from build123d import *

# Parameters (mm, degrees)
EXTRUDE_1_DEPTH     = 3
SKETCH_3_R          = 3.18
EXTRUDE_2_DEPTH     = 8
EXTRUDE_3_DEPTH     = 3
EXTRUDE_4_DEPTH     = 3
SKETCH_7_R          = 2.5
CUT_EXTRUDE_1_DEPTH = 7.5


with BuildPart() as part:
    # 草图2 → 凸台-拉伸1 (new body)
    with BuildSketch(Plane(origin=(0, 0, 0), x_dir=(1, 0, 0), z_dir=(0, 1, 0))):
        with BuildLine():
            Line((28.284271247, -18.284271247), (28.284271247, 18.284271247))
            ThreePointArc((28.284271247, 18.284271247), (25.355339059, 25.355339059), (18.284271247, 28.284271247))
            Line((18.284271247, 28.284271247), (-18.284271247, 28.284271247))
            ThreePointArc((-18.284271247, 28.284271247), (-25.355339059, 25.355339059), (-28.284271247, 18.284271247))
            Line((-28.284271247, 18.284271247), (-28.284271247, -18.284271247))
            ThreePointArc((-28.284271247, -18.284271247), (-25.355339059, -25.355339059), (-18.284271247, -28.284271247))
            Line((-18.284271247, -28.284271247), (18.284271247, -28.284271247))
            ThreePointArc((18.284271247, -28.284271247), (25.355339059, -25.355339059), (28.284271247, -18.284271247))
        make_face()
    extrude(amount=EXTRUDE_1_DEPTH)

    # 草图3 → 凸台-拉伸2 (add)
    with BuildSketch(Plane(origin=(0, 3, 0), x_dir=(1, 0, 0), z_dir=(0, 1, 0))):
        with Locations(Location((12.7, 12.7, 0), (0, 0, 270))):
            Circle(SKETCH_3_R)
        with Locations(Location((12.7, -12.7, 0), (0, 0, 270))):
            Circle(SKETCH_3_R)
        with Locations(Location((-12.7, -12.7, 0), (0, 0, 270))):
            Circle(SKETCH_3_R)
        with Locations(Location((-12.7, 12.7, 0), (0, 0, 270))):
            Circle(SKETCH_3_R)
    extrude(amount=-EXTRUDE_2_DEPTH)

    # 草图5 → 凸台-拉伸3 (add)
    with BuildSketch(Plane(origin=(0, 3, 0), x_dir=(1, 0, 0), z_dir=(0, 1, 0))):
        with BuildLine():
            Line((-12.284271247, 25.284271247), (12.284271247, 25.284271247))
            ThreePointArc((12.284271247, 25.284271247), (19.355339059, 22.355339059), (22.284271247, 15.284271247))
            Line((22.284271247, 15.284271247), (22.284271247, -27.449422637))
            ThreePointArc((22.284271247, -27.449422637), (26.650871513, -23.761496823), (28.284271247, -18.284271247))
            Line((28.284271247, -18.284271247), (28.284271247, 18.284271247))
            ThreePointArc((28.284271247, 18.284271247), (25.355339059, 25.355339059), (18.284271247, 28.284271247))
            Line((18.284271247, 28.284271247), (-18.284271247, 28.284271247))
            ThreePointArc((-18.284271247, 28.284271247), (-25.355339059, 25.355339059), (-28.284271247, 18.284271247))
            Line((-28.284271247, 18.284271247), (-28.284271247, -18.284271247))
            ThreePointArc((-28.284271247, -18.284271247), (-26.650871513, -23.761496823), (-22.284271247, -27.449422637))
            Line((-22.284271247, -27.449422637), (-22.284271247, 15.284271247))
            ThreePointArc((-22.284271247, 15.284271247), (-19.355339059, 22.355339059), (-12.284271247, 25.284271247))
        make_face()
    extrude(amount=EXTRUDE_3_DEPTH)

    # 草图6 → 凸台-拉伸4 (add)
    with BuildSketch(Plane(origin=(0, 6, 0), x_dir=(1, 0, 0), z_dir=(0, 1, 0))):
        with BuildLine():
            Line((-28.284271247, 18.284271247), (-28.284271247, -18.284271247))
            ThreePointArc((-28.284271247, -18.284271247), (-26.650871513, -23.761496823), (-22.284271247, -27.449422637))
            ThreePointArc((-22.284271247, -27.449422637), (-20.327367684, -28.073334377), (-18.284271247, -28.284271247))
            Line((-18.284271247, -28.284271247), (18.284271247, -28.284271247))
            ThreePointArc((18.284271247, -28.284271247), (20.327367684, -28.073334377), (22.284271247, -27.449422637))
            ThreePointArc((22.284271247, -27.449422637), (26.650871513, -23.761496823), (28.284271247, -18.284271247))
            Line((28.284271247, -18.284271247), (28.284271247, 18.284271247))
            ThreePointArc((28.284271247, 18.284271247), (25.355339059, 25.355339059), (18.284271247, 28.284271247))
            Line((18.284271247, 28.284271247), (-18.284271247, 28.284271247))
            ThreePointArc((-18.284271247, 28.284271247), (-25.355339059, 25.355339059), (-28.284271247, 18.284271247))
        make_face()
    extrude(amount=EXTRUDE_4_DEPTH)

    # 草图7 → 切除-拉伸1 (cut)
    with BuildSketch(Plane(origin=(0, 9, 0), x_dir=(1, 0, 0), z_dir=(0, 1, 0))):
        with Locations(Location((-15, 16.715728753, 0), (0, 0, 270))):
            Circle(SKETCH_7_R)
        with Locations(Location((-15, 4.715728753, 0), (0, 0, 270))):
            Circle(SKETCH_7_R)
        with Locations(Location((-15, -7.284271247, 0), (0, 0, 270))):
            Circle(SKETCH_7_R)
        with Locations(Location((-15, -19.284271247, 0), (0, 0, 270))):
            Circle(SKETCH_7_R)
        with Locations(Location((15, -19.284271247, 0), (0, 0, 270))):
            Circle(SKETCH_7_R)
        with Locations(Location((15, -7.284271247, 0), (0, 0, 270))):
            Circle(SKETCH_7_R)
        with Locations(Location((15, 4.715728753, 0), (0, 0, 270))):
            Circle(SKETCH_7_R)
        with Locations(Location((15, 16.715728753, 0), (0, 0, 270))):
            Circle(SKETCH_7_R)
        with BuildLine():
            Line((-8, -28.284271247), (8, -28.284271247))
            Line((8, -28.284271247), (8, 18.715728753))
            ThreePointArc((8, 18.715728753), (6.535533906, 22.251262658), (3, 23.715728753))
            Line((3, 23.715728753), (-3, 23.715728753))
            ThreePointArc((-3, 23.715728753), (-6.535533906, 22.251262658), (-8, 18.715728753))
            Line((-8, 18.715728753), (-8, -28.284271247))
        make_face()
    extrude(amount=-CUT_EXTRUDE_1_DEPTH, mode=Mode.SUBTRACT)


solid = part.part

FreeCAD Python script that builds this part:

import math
import FreeCAD as App
import Part
import Sketcher
Q = App.Units.Quantity

doc = App.newDocument("Part")
body = doc.addObject("PartDesign::Body", "Body")

sketch1 = body.newObject("Sketcher::SketchObject", "Sketch")
sketch1.AttachmentSupport = (doc.getObject("XZ_Plane"), [""])
sketch1.MapMode = "FlatFace"
sketch1.addGeometry(Part.LineSegment(App.Vector(28, 18, 0), App.Vector(28, -18, 0)), False)
sketch1.addGeometry(Part.ArcOfCircle(Part.Circle(App.Vector(18, -18, 0), App.Vector(0, 0, 1), 10), math.radians(-90), math.radians(0)), False)
sketch1.addGeometry(Part.LineSegment(App.Vector(18, -28, 0), App.Vector(-18, -28, 0)), False)
sketch1.addGeometry(Part.ArcOfCircle(Part.Circle(App.Vector(-18, -18, 0), App.Vector(0, 0, 1), 10), math.radians(180), math.radians(270)), False)
sketch1.addGeometry(Part.LineSegment(App.Vector(-28, -18, 0), App.Vector(-28, 18, 0)), False)
sketch1.addGeometry(Part.ArcOfCircle(Part.Circle(App.Vector(-18, 18, 0), App.Vector(0, 0, 1), 10), math.radians(90), math.radians(180)), False)
sketch1.addGeometry(Part.LineSegment(App.Vector(-18, 28, 0), App.Vector(18, 28, 0)), False)
sketch1.addGeometry(Part.ArcOfCircle(Part.Circle(App.Vector(18, 18, 0), App.Vector(0, 0, 1), 10), math.radians(0), math.radians(90)), False)
sketch1.addConstraint(Sketcher.Constraint("Tangent", 0, 2, 1, 2))
sketch1.addConstraint(Sketcher.Constraint("Tangent", 1, 1, 2, 1))
sketch1.addConstraint(Sketcher.Constraint("Tangent", 2, 2, 3, 2))
sketch1.addConstraint(Sketcher.Constraint("Tangent", 3, 1, 4, 1))
sketch1.addConstraint(Sketcher.Constraint("Tangent", 4, 2, 5, 2))
sketch1.addConstraint(Sketcher.Constraint("Tangent", 5, 1, 6, 1))
sketch1.addConstraint(Sketcher.Constraint("Tangent", 6, 2, 7, 2))
sketch1.addConstraint(Sketcher.Constraint("Tangent", 7, 1, 0, 1))
sketch1.addConstraint(Sketcher.Constraint("Vertical", 0))
sketch1.addConstraint(Sketcher.Constraint("Horizontal", 2))
sketch1.addConstraint(Sketcher.Constraint("Vertical", 4))
sketch1.addConstraint(Sketcher.Constraint("Horizontal", 6))
sketch1.addConstraint(Sketcher.Constraint("Equal", 1, 3))
sketch1.addConstraint(Sketcher.Constraint("Equal", 3, 5))
sketch1.addConstraint(Sketcher.Constraint("Equal", 5, 7))
sketch1.addConstraint(Sketcher.Constraint("Symmetric", 1, 3, 5, 3, -1, 1))
sketch1.addConstraint(Sketcher.Constraint("Equal", 6, 0))
sketch1.addConstraint(Sketcher.Constraint("Radius", 1, Q("10 mm")))
sketch1.addConstraint(Sketcher.Constraint("DistanceX", 2, 2, 2, 1, Q("36.568542 mm")))
pad1 = body.newObject("PartDesign::Pad", "Pad")
pad1.Profile = sketch1
pad1.Length = 3
pad1.Reversed = True

sketch2 = body.newObject("Sketcher::SketchObject", "Sketch001")
sketch2.AttachmentSupport = (doc.getObject("XZ_Plane"), [""])
sketch2.MapMode = "FlatFace"
sketch2.AttachmentOffset = App.Placement(App.Vector(0, 0, -3), App.Rotation())
sketch2.addGeometry(Part.Circle(App.Vector(12.7, -12.7, 0), App.Vector(0, 0, 1), 3.2), False)
sketch2.addGeometry(Part.Circle(App.Vector(12.7, 12.7, 0), App.Vector(0, 0, 1), 3.2), False)
sketch2.addGeometry(Part.Circle(App.Vector(-12.7, 12.7, 0), App.Vector(0, 0, 1), 3.2), False)
sketch2.addGeometry(Part.Circle(App.Vector(-12.7, -12.7, 0), App.Vector(0, 0, 1), 3.2), False)
sketch2.addConstraint(Sketcher.Constraint("Equal", 0, 1))
sketch2.addConstraint(Sketcher.Constraint("Equal", 1, 2))
sketch2.addConstraint(Sketcher.Constraint("Equal", 2, 3))
sketch2.addConstraint(Sketcher.Constraint("Symmetric", 0, 3, 2, 3, -1, 1))
sketch2.addConstraint(Sketcher.Constraint("Symmetric", 1, 3, 3, 3, -1, 1))
sketch2.addConstraint(Sketcher.Constraint("Symmetric", 1, 3, 2, 3, -2))
sketch2.addConstraint(Sketcher.Constraint("Diameter", 0, Q("6.36 mm")))
sketch2.addConstraint(Sketcher.Constraint("DistanceX", -1, 1, 0, 3, Q("12.7 mm")))
sketch2.addConstraint(Sketcher.Constraint("DistanceY", 0, 3, -1, 1, Q("12.7 mm")))
pad2 = body.newObject("PartDesign::Pad", "Pad001")
pad2.Profile = sketch2
pad2.Length = 8

sketch3 = body.newObject("Sketcher::SketchObject", "Sketch002")
sketch3.AttachmentSupport = (doc.getObject("XZ_Plane"), [""])
sketch3.MapMode = "FlatFace"
sketch3.AttachmentOffset = App.Placement(App.Vector(0, 0, -3), App.Rotation())
sketch3.addGeometry(Part.LineSegment(App.Vector(-12, -25, 0), App.Vector(12, -25, 0)), False)
sketch3.addGeometry(Part.ArcOfCircle(Part.Circle(App.Vector(12, -15, 0), App.Vector(0, 0, 1), 10), math.radians(-90), math.radians(0)), False)
sketch3.addGeometry(Part.LineSegment(App.Vector(22, -15, 0), App.Vector(22, 27, 0)), False)
sketch3.addGeometry(Part.ArcOfCircle(Part.Circle(App.Vector(18, 18, 0), App.Vector(0, 0, 1), 10), math.radians(0), math.radians(66)), False)
sketch3.addGeometry(Part.LineSegment(App.Vector(28, 18, 0), App.Vector(28, -18, 0)), False)
sketch3.addGeometry(Part.ArcOfCircle(Part.Circle(App.Vector(18, -18, 0), App.Vector(0, 0, 1), 10), math.radians(-90), math.radians(0)), False)
sketch3.addGeometry(Part.LineSegment(App.Vector(18, -28, 0), App.Vector(-18, -28, 0)), False)
sketch3.addGeometry(Part.ArcOfCircle(Part.Circle(App.Vector(-18, -18, 0), App.Vector(0, 0, 1), 10), math.radians(180), math.radians(270)), False)
sketch3.addGeometry(Part.LineSegment(App.Vector(-28, -18, 0), App.Vector(-28, 18, 0)), False)
sketch3.addGeometry(Part.ArcOfCircle(Part.Circle(App.Vector(-18, 18, 0), App.Vector(0, 0, 1), 10), math.radians(114), math.radians(180)), False)
sketch3.addGeometry(Part.LineSegment(App.Vector(-22, 27, 0), App.Vector(-22, -15, 0)), False)
sketch3.addGeometry(Part.ArcOfCircle(Part.Circle(App.Vector(-12, -15, 0), App.Vector(0, 0, 1), 10), math.radians(180), math.radians(270)), False)
sketch3.addConstraint(Sketcher.Constraint("Tangent", 0, 2, 1, 1))
sketch3.addConstraint(Sketcher.Constraint("Tangent", 1, 2, 2, 1))
sketch3.addConstraint(Sketcher.Constraint("Coincident", 2, 2, 3, 2))
sketch3.addConstraint(Sketcher.Constraint("Tangent", 3, 1, 4, 1))
sketch3.addConstraint(Sketcher.Constraint("Tangent", 4, 2, 5, 2))
sketch3.addConstraint(Sketcher.Constraint("Tangent", 5, 1, 6, 1))
sketch3.addConstraint(Sketcher.Constraint("Tangent", 6, 2, 7, 2))
sketch3.addConstraint(Sketcher.Constraint("Tangent", 7, 1, 8, 1))
sketch3.addConstraint(Sketcher.Constraint("Tangent", 8, 2, 9, 2))
sketch3.addConstraint(Sketcher.Constraint("Coincident", 9, 1, 10, 1))
sketch3.addConstraint(Sketcher.Constraint("Tangent", 10, 2, 11, 1))
sketch3.addConstraint(Sketcher.Constraint("Tangent", 11, 2, 0, 1))
sketch3.addConstraint(Sketcher.Constraint("Horizontal", 0))
sketch3.addConstraint(Sketcher.Constraint("Vertical", 2))
sketch3.addConstraint(Sketcher.Constraint("Vertical", 4))
sketch3.addConstraint(Sketcher.Constraint("Horizontal", 6))
sketch3.addConstraint(Sketcher.Constraint("Vertical", 8))
sketch3.addConstraint(Sketcher.Constraint("Vertical", 10))
sketch3.addConstraint(Sketcher.Constraint("Equal", 1, 3))
sketch3.addConstraint(Sketcher.Constraint("Equal", 3, 5))
sketch3.addConstraint(Sketcher.Constraint("Equal", 5, 7))
sketch3.addConstraint(Sketcher.Constraint("Equal", 7, 9))
sketch3.addConstraint(Sketcher.Constraint("Equal", 9, 11))
sketch3.addConstraint(Sketcher.Constraint("Symmetric", 3, 3, 7, 3, -1, 1))
sketch3.addConstraint(Sketcher.Constraint("Symmetric", 2, 2, 9, 1, -2))
sketch3.addConstraint(Sketcher.Constraint("Equal", 6, 4))
sketch3.addConstraint(Sketcher.Constraint("Radius", 1, Q("10 mm")))
sketch3.addConstraint(Sketcher.Constraint("DistanceX", 1, 3, 3, 3, Q("6 mm")))
sketch3.addConstraint(Sketcher.Constraint("DistanceY", 5, 3, 1, 3, Q("3 mm")))
sketch3.addConstraint(Sketcher.Constraint("DistanceX", 0, 1, 0, 2, Q("24.568542 mm")))
pad3 = body.newObject("PartDesign::Pad", "Pad002")
pad3.Profile = sketch3
pad3.Length = 3
pad3.Reversed = True

sketch4 = body.newObject("Sketcher::SketchObject", "Sketch003")
sketch4.AttachmentSupport = (doc.getObject("XZ_Plane"), [""])
sketch4.MapMode = "FlatFace"
sketch4.AttachmentOffset = App.Placement(App.Vector(0, 0, -6), App.Rotation())
sketch4.addGeometry(Part.LineSegment(App.Vector(-28.3, -18.3, 0), App.Vector(-28.3, 18.3, 0)), False)
sketch4.addGeometry(Part.ArcOfCircle(Part.Circle(App.Vector(-18.3, 18.3, 0), App.Vector(0, 0, 1), 10), math.radians(114), math.radians(180)), False)
sketch4.addGeometry(Part.ArcOfCircle(Part.Circle(App.Vector(-18.3, 18.3, 0), App.Vector(0, 0, 1), 10), math.radians(90), math.radians(114)), False)
sketch4.addGeometry(Part.LineSegment(App.Vector(-18.3, 28.3, 0), App.Vector(18.3, 28.3, 0)), False)
sketch4.addGeometry(Part.ArcOfCircle(Part.Circle(App.Vector(18.3, 18.3, 0), App.Vector(0, 0, 1), 10), math.radians(66), math.radians(90)), False)
sketch4.addGeometry(Part.ArcOfCircle(Part.Circle(App.Vector(18.3, 18.3, 0), App.Vector(0, 0, 1), 10), math.radians(0), math.radians(66)), False)
sketch4.addGeometry(Part.LineSegment(App.Vector(28.3, 18.3, 0), App.Vector(28.3, -18.3, 0)), False)
sketch4.addGeometry(Part.ArcOfCircle(Part.Circle(App.Vector(18.3, -18.3, 0), App.Vector(0, 0, 1), 10), math.radians(-90), math.radians(0)), False)
sketch4.addGeometry(Part.LineSegment(App.Vector(18.3, -28.3, 0), App.Vector(-18.3, -28.3, 0)), False)
sketch4.addGeometry(Part.ArcOfCircle(Part.Circle(App.Vector(-18.3, -18.3, 0), App.Vector(0, 0, 1), 10), math.radians(180), math.radians(270)), False)
sketch4.addConstraint(Sketcher.Constraint("Tangent", 0, 2, 1, 2))
sketch4.addConstraint(Sketcher.Constraint("Tangent", 1, 1, 2, 2))
sketch4.addConstraint(Sketcher.Constraint("Tangent", 2, 1, 3, 1))
sketch4.addConstraint(Sketcher.Constraint("Tangent", 3, 2, 4, 2))
sketch4.addConstraint(Sketcher.Constraint("Tangent", 4, 1, 5, 2))
sketch4.addConstraint(Sketcher.Constraint("Tangent", 5, 1, 6, 1))
sketch4.addConstraint(Sketcher.Constraint("Tangent", 6, 2, 7, 2))
sketch4.addConstraint(Sketcher.Constraint("Tangent", 7, 1, 8, 1))
sketch4.addConstraint(Sketcher.Constraint("Tangent", 8, 2, 9, 2))
sketch4.addConstraint(Sketcher.Constraint("Tangent", 9, 1, 0, 1))
sketch4.addConstraint(Sketcher.Constraint("Vertical", 0))
sketch4.addConstraint(Sketcher.Constraint("Horizontal", 3))
sketch4.addConstraint(Sketcher.Constraint("Vertical", 6))
sketch4.addConstraint(Sketcher.Constraint("Horizontal", 8))
sketch4.addConstraint(Sketcher.Constraint("Equal", 1, 2))
sketch4.addConstraint(Sketcher.Constraint("Equal", 2, 4))
sketch4.addConstraint(Sketcher.Constraint("Equal", 4, 5))
sketch4.addConstraint(Sketcher.Constraint("Equal", 5, 7))
sketch4.addConstraint(Sketcher.Constraint("Equal", 7, 9))
sketch4.addConstraint(Sketcher.Constraint("Symmetric", 1, 3, 7, 3, -1, 1))
sketch4.addConstraint(Sketcher.Constraint("Horizontal", 1, 1, 4, 1))
sketch4.addConstraint(Sketcher.Constraint("Equal", 8, 0))
sketch4.addConstraint(Sketcher.Constraint("Radius", 1, Q("10 mm")))
sketch4.addConstraint(Sketcher.Constraint("DistanceX", 1, 1, 2, 3, Q("4 mm")))
sketch4.addConstraint(Sketcher.Constraint("DistanceX", 3, 1, 3, 2, Q("36.568542 mm")))
pad4 = body.newObject("PartDesign::Pad", "Pad003")
pad4.Profile = sketch4
pad4.Length = 3
pad4.Reversed = True

sketch5 = body.newObject("Sketcher::SketchObject", "Sketch004")
sketch5.AttachmentSupport = (doc.getObject("XZ_Plane"), [""])
sketch5.MapMode = "FlatFace"
sketch5.AttachmentOffset = App.Placement(App.Vector(0, 0, -9), App.Rotation())
sketch5.addGeometry(Part.Circle(App.Vector(-15, -16.7, 0), App.Vector(0, 0, 1), 2.5), False)
sketch5.addGeometry(Part.Circle(App.Vector(-15, -4.7, 0), App.Vector(0, 0, 1), 2.5), False)
sketch5.addGeometry(Part.Circle(App.Vector(-15, 7.3, 0), App.Vector(0, 0, 1), 2.5), False)
sketch5.addGeometry(Part.Circle(App.Vector(-15, 19.3, 0), App.Vector(0, 0, 1), 2.5), False)
sketch5.addGeometry(Part.Circle(App.Vector(15, 19.3, 0), App.Vector(0, 0, 1), 2.5), False)
sketch5.addGeometry(Part.Circle(App.Vector(15, 7.3, 0), App.Vector(0, 0, 1), 2.5), False)
sketch5.addGeometry(Part.Circle(App.Vector(15, -4.7, 0), App.Vector(0, 0, 1), 2.5), False)
sketch5.addGeometry(Part.Circle(App.Vector(15, -16.7, 0), App.Vector(0, 0, 1), 2.5), False)
sketch5.addGeometry(Part.LineSegment(App.Vector(-8, 28.3, 0), App.Vector(8, 28.3, 0)), False)
sketch5.addGeometry(Part.LineSegment(App.Vector(8, 28.3, 0), App.Vector(8, -18.7, 0)), False)
sketch5.addGeometry(Part.ArcOfCircle(Part.Circle(App.Vector(3, -18.7, 0), App.Vector(0, 0, 1), 5), math.radians(-90), math.radians(0)), False)
sketch5.addGeometry(Part.LineSegment(App.Vector(3, -23.7, 0), App.Vector(-3, -23.7, 0)), False)
sketch5.addGeometry(Part.ArcOfCircle(Part.Circle(App.Vector(-3, -18.7, 0), App.Vector(0, 0, 1), 5), math.radians(-180), math.radians(-90)), False)
sketch5.addGeometry(Part.LineSegment(App.Vector(-8, -18.7, 0), App.Vector(-8, 28.3, 0)), False)
sketch5.addConstraint(Sketcher.Constraint("Coincident", 8, 2, 9, 1))
sketch5.addConstraint(Sketcher.Constraint("Tangent", 9, 2, 10, 2))
sketch5.addConstraint(Sketcher.Constraint("Tangent", 10, 1, 11, 1))
sketch5.addConstraint(Sketcher.Constraint("Tangent", 11, 2, 12, 2))
sketch5.addConstraint(Sketcher.Constraint("Tangent", 12, 1, 13, 1))
sketch5.addConstraint(Sketcher.Constraint("Coincident", 13, 2, 8, 1))
sketch5.addConstraint(Sketcher.Constraint("Horizontal", 8))
sketch5.addConstraint(Sketcher.Constraint("Vertical", 9))
sketch5.addConstraint(Sketcher.Constraint("Horizontal", 11))
sketch5.addConstraint(Sketcher.Constraint("Vertical", 13))
sketch5.addConstraint(Sketcher.Constraint("Equal", 0, 1))
sketch5.addConstraint(Sketcher.Constraint("Equal", 1, 2))
sketch5.addConstraint(Sketcher.Constraint("Equal", 2, 3))
sketch5.addConstraint(Sketcher.Constraint("Equal", 3, 4))
sketch5.addConstraint(Sketcher.Constraint("Equal", 4, 5))
sketch5.addConstraint(Sketcher.Constraint("Equal", 5, 6))
sketch5.addConstraint(Sketcher.Constraint("Equal", 6, 7))
sketch5.addConstraint(Sketcher.Constraint("Equal", 10, 12))
sketch5.addConstraint(Sketcher.Constraint("Symmetric", 3, 3, 4, 3, -2))
sketch5.addConstraint(Sketcher.Constraint("Symmetric", 2, 3, 5, 3, -2))
sketch5.addConstraint(Sketcher.Constraint("Symmetric", 1, 3, 6, 3, -2))
sketch5.addConstraint(Sketcher.Constraint("Symmetric", 0, 3, 7, 3, -2))
sketch5.addConstraint(Sketcher.Constraint("Vertical", 0, 3, 1, 3))
sketch5.addConstraint(Sketcher.Constraint("Vertical", 1, 3, 2, 3))
sketch5.addConstraint(Sketcher.Constraint("Vertical", 2, 3, 3, 3))
sketch5.addConstraint(Sketcher.Constraint("Diameter", 0, Q("5 mm")))
sketch5.addConstraint(Sketcher.Constraint("Radius", 10, Q("5 mm")))
sketch5.addConstraint(Sketcher.Constraint("DistanceX", 8, 1, 8, 2, Q("16 mm")))
sketch5.addConstraint(Sketcher.Constraint("DistanceY", 9, 2, 9, 1, Q("47 mm")))
sketch5.addConstraint(Sketcher.Constraint("DistanceX", 0, 3, -1, 1, Q("15 mm")))
sketch5.addConstraint(Sketcher.Constraint("DistanceX", -1, 1, 10, 3, Q("3 mm")))
sketch5.addConstraint(Sketcher.Constraint("DistanceY", 0, 3, 1, 3, Q("12 mm")))
sketch5.addConstraint(Sketcher.Constraint("DistanceY", 1, 3, 2, 3, Q("12 mm")))
sketch5.addConstraint(Sketcher.Constraint("DistanceY", 2, 3, 3, 3, Q("12 mm")))
sketch5.addConstraint(Sketcher.Constraint("DistanceY", 10, 3, 7, 3, Q("2 mm")))
sketch5.addConstraint(Sketcher.Constraint("DistanceY", 0, 3, -1, 1, Q("16.715729 mm")))
pocket1 = body.newObject("PartDesign::Pocket", "Pocket")
pocket1.Profile = sketch5
pocket1.Length = 7.5
pocket1.Reversed = True

doc.recompute()
